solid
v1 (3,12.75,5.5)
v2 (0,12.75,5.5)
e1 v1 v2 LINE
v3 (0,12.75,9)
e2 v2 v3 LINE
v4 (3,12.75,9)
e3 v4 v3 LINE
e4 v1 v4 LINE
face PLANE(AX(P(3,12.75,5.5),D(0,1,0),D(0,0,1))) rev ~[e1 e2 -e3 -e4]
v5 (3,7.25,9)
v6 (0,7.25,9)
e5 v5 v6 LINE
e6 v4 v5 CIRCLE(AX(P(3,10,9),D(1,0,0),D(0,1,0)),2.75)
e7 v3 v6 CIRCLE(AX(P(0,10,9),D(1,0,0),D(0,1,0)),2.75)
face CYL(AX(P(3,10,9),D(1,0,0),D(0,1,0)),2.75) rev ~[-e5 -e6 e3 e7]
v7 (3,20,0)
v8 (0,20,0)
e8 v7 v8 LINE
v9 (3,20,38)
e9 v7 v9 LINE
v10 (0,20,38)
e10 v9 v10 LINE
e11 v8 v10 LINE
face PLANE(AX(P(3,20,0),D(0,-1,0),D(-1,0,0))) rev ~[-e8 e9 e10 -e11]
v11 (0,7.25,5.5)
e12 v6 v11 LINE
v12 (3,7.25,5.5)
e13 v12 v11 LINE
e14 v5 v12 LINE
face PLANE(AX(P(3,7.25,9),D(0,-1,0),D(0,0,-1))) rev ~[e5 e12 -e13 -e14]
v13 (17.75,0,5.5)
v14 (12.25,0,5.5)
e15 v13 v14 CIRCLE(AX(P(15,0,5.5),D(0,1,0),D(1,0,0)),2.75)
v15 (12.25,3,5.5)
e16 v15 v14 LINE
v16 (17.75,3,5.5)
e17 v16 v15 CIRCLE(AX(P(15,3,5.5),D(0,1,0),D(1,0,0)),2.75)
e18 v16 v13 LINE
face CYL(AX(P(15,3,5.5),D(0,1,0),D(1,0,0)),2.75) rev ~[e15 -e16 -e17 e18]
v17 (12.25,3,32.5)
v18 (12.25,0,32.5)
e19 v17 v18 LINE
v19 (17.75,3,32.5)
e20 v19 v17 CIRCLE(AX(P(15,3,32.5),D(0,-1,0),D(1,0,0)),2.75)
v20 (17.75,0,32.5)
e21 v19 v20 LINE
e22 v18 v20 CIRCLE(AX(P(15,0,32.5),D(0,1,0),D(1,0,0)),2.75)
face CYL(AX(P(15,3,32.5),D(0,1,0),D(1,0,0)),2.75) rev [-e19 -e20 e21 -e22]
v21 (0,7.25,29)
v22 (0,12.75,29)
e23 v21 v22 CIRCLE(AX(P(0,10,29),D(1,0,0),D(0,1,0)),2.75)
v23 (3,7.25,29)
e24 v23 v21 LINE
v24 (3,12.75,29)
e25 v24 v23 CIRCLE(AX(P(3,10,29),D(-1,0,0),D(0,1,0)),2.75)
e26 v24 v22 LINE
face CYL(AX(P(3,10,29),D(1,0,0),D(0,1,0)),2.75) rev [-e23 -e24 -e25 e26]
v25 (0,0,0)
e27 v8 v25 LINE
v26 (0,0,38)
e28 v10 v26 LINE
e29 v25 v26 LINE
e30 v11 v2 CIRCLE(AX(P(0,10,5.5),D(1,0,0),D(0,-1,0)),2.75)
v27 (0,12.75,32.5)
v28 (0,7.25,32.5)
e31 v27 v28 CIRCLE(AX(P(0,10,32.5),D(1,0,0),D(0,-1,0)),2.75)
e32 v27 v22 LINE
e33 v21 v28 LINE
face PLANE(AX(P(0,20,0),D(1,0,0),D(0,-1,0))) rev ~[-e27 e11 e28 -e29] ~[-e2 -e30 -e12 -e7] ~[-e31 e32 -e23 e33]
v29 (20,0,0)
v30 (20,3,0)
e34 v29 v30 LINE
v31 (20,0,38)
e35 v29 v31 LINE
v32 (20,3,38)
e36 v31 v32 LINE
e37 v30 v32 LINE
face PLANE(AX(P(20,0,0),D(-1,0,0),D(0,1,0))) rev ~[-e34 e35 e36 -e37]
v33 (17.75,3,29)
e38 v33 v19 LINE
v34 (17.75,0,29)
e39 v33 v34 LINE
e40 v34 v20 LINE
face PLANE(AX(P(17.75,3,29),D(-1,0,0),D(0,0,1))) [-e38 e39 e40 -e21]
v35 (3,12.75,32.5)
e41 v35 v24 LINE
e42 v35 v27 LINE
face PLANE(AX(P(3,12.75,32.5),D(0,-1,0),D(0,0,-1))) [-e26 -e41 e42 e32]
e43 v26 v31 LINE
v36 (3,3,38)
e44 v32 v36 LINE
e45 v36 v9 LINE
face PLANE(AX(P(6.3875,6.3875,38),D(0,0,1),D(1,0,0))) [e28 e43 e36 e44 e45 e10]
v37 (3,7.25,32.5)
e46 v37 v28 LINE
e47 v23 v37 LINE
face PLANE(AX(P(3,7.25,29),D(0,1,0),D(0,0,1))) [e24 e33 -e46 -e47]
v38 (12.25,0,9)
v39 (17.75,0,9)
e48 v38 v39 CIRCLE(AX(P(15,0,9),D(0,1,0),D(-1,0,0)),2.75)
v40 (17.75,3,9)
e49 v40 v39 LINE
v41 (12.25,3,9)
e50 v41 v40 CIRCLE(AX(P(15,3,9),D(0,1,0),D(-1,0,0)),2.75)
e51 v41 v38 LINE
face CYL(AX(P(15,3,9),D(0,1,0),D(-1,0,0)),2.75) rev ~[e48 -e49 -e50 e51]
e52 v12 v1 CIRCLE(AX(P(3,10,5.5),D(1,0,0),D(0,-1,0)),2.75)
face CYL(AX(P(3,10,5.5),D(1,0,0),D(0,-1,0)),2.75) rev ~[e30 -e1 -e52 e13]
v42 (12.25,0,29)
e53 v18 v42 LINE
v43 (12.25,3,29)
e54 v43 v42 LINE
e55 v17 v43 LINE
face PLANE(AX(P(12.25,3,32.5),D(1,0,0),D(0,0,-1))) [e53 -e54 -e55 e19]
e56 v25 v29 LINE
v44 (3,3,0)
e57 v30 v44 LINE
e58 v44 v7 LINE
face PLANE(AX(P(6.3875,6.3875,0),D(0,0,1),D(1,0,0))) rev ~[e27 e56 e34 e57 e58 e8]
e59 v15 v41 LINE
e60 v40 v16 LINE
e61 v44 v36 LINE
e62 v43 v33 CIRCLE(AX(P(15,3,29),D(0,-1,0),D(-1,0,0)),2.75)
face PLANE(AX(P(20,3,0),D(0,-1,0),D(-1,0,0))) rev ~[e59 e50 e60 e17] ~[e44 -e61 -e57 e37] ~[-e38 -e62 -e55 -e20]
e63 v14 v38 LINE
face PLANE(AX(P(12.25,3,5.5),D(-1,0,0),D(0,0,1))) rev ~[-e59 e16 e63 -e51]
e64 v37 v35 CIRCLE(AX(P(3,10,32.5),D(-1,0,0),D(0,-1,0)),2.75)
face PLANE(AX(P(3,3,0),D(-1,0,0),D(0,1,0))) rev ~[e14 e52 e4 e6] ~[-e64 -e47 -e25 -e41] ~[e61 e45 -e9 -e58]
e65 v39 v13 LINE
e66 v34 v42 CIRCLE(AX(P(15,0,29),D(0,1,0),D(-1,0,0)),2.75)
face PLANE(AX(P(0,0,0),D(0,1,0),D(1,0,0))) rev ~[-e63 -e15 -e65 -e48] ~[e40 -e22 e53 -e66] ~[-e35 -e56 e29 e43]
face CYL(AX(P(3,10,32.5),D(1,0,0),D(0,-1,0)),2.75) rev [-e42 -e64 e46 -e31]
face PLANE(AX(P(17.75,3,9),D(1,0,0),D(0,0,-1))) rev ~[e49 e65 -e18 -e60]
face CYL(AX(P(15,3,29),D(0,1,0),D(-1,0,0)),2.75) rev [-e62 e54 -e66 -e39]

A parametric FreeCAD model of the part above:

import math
import FreeCAD as App
import Part
import Sketcher

doc = App.newDocument("Part")
body = doc.addObject("PartDesign::Body", "Body")

# Sketch on XY plane
sketch1 = body.newObject("Sketcher::SketchObject", "Sketch")
sketch1.AttachmentSupport = (doc.getObject("XY_Plane"), [""])
sketch1.MapMode = "FlatFace"
sketch1.addGeometry([
    Part.LineSegment(App.Vector(0, 20, 0), App.Vector(0, 0, 0)),  # 0
    Part.LineSegment(App.Vector(0, 0, 0), App.Vector(20, 0, 0)),  # 1
    Part.LineSegment(App.Vector(20, 0, 0), App.Vector(20, 3, 0)),  # 2
    Part.LineSegment(App.Vector(20, 3, 0), App.Vector(3, 3, 0)),  # 3
    Part.LineSegment(App.Vector(3, 3, 0), App.Vector(3, 20, 0)),  # 4
    Part.LineSegment(App.Vector(3, 20, 0), App.Vector(0, 20, 0)),  # 5
], False)
sketch1.addConstraint([
    Sketcher.Constraint("Coincident", 0, 2, 1, 1),
    Sketcher.Constraint("Coincident", 1, 2, 2, 1),
    Sketcher.Constraint("Coincident", 2, 2, 3, 1),
    Sketcher.Constraint("Coincident", 3, 2, 4, 1),
    Sketcher.Constraint("Coincident", 4, 2, 5, 1),
    Sketcher.Constraint("Coincident", 5, 2, 0, 1),
    Sketcher.Constraint("Vertical", 0),
    Sketcher.Constraint("Horizontal", 1),
    Sketcher.Constraint("Vertical", 2),
    Sketcher.Constraint("Horizontal", 3),
    Sketcher.Constraint("Vertical", 4),
    Sketcher.Constraint("Horizontal", 5),
    Sketcher.Constraint("Coincident", 0, 2, -1, 1),
    Sketcher.Constraint("Equal", 1, 0),
    Sketcher.Constraint("Equal", 5, 2),
    Sketcher.Constraint("DistanceX", 1, 1, 1, 2, 20.0),
    Sketcher.Constraint("DistanceX", 3, 2, 3, 1, 17.0),
])
pad1 = body.newObject("PartDesign::Pad", "Pad")
pad1.Profile = sketch1
pad1.Length = 38

# Sketch on YZ plane
sketch2 = body.newObject("Sketcher::SketchObject", "Sketch001")
sketch2.AttachmentSupport = (doc.getObject("YZ_Plane"), [""])
sketch2.MapMode = "FlatFace"
sketch2.AttachmentOffset = App.Placement(App.Vector(0, 0, 3), App.Rotation())
sketch2.addGeometry([
    Part.LineSegment(App.Vector(7.2, 32.5, 0), App.Vector(7.2, 29, 0)),  # 0
    Part.ArcOfCircle(Part.Circle(App.Vector(10, 29, 0), App.Vector(0, 0, 1), 2.8), math.radians(180), math.radians(360)),  # 1
    Part.LineSegment(App.Vector(12.8, 29, 0), App.Vector(12.8, 32.5, 0)),  # 2
    Part.ArcOfCircle(Part.Circle(App.Vector(10, 32.5, 0), App.Vector(0, 0, 1), 2.8), math.radians(0), math.radians(180)),  # 3
    Part.LineSegment(App.Vector(7.2, 9, 0), App.Vector(7.2, 5.5, 0)),  # 4
    Part.ArcOfCircle(Part.Circle(App.Vector(10, 5.5, 0), App.Vector(0, 0, 1), 2.8), math.radians(180), math.radians(360)),  # 5
    Part.LineSegment(App.Vector(12.8, 5.5, 0), App.Vector(12.8, 9, 0)),  # 6
    Part.ArcOfCircle(Part.Circle(App.Vector(10, 9, 0), App.Vector(0, 0, 1), 2.8), math.radians(0), math.radians(180)),  # 7
], False)
sketch2.addConstraint([
    Sketcher.Constraint("Tangent", 0, 2, 1, 1),
    Sketcher.Constraint("Tangent", 1, 2, 2, 1),
    Sketcher.Constraint("Tangent", 2, 2, 3, 1),
    Sketcher.Constraint("Tangent", 3, 2, 0, 1),
    Sketcher.Constraint("Tangent", 4, 2, 5, 1),
    Sketcher.Constraint("Tangent", 5, 2, 6, 1),
    Sketcher.Constraint("Tangent", 6, 2, 7, 1),
    Sketcher.Constraint("Tangent", 7, 2, 4, 1),
    Sketcher.Constraint("Vertical", 0),
    Sketcher.Constraint("Vertical", 2),
    Sketcher.Constraint("Vertical", 4),
    Sketcher.Constraint("Vertical", 6),
    Sketcher.Constraint("Equal", 3, 5),
    Sketcher.Constraint("Vertical", 3, 3, 5, 3),
    Sketcher.Constraint("Equal", 2, 4),
    Sketcher.Constraint("Radius", 1, 2.75),
    Sketcher.Constraint("DistanceY", 0, 2, 0, 1, 3.5),
    Sketcher.Constraint("DistanceX", -1, 1, 1, 3, 10.0),
    Sketcher.Constraint("DistanceY", -1, 1, 1, 3, 29.0),
    Sketcher.Constraint("DistanceY", -1, 1, 7, 3, 9.0),
])
pocket1 = body.newObject("PartDesign::Pocket", "Pocket")
pocket1.Profile = sketch2
pocket1.Type = "ThroughAll"

# Sketch on XZ plane
sketch3 = body.newObject("Sketcher::SketchObject", "Sketch002")
sketch3.AttachmentSupport = (doc.getObject("XZ_Plane"), [""])
sketch3.MapMode = "FlatFace"
sketch3.AttachmentOffset = App.Placement(App.Vector(0, 0, -3), App.Rotation())
sketch3.addGeometry([
    Part.LineSegment(App.Vector(12.2, 29, 0), App.Vector(12.2, 32.5, 0)),  # 0
    Part.ArcOfCircle(Part.Circle(App.Vector(15, 32.5, 0), App.Vector(0, 0, 1), 2.8), math.radians(0), math.radians(180)),  # 1
    Part.LineSegment(App.Vector(17.8, 32.5, 0), App.Vector(17.8, 29, 0)),  # 2
    Part.ArcOfCircle(Part.Circle(App.Vector(15, 29, 0), App.Vector(0, 0, 1), 2.8), math.radians(180), math.radians(360)),  # 3
    Part.LineSegment(App.Vector(12.2, 5.5, 0), App.Vector(12.2, 9, 0)),  # 4
    Part.ArcOfCircle(Part.Circle(App.Vector(15, 9, 0), App.Vector(0, 0, 1), 2.8), math.radians(0), math.radians(180)),  # 5
    Part.LineSegment(App.Vector(17.8, 9, 0), App.Vector(17.8, 5.5, 0)),  # 6
    Part.ArcOfCircle(Part.Circle(App.Vector(15, 5.5, 0), App.Vector(0, 0, 1), 2.8), math.radians(180), math.radians(360)),  # 7
], False)
sketch3.addConstraint([
    Sketcher.Constraint("Tangent", 0, 2, 1, 2),
    Sketcher.Constraint("Tangent", 1, 1, 2, 1),
    Sketcher.Constraint("Tangent", 2, 2, 3, 2),
    Sketcher.Constraint("Tangent", 3, 1, 0, 1),
    Sketcher.Constraint("Tangent", 4, 2, 5, 2),
    Sketcher.Constraint("Tangent", 5, 1, 6, 1),
    Sketcher.Constraint("Tangent", 6, 2, 7, 2),
    Sketcher.Constraint("Tangent", 7, 1, 4, 1),
    Sketcher.Constraint("Vertical", 0),
    Sketcher.Constraint("Vertical", 2),
    Sketcher.Constraint("Vertical", 4),
    Sketcher.Constraint("Vertical", 6),
    Sketcher.Constraint("Equal", 3, 5),
    Sketcher.Constraint("Vertical", 3, 3, 5, 3),
    Sketcher.Constraint("Equal", 2, 4),
    Sketcher.Constraint("Radius", 1, 2.75),
    Sketcher.Constraint("DistanceY", 0, 1, 0, 2, 3.5),
    Sketcher.Constraint("DistanceX", -1, 1, 1, 3, 15.0),
    Sketcher.Constraint("DistanceY", -1, 1, 3, 3, 29.0),
    Sketcher.Constraint("DistanceY", -1, 1, 5, 3, 9.0),
])
pocket2 = body.newObject("PartDesign::Pocket", "Pocket001")
pocket2.Profile = sketch3
pocket2.Type = "ThroughAll"
pocket2.Reversed = True

doc.recompute()
